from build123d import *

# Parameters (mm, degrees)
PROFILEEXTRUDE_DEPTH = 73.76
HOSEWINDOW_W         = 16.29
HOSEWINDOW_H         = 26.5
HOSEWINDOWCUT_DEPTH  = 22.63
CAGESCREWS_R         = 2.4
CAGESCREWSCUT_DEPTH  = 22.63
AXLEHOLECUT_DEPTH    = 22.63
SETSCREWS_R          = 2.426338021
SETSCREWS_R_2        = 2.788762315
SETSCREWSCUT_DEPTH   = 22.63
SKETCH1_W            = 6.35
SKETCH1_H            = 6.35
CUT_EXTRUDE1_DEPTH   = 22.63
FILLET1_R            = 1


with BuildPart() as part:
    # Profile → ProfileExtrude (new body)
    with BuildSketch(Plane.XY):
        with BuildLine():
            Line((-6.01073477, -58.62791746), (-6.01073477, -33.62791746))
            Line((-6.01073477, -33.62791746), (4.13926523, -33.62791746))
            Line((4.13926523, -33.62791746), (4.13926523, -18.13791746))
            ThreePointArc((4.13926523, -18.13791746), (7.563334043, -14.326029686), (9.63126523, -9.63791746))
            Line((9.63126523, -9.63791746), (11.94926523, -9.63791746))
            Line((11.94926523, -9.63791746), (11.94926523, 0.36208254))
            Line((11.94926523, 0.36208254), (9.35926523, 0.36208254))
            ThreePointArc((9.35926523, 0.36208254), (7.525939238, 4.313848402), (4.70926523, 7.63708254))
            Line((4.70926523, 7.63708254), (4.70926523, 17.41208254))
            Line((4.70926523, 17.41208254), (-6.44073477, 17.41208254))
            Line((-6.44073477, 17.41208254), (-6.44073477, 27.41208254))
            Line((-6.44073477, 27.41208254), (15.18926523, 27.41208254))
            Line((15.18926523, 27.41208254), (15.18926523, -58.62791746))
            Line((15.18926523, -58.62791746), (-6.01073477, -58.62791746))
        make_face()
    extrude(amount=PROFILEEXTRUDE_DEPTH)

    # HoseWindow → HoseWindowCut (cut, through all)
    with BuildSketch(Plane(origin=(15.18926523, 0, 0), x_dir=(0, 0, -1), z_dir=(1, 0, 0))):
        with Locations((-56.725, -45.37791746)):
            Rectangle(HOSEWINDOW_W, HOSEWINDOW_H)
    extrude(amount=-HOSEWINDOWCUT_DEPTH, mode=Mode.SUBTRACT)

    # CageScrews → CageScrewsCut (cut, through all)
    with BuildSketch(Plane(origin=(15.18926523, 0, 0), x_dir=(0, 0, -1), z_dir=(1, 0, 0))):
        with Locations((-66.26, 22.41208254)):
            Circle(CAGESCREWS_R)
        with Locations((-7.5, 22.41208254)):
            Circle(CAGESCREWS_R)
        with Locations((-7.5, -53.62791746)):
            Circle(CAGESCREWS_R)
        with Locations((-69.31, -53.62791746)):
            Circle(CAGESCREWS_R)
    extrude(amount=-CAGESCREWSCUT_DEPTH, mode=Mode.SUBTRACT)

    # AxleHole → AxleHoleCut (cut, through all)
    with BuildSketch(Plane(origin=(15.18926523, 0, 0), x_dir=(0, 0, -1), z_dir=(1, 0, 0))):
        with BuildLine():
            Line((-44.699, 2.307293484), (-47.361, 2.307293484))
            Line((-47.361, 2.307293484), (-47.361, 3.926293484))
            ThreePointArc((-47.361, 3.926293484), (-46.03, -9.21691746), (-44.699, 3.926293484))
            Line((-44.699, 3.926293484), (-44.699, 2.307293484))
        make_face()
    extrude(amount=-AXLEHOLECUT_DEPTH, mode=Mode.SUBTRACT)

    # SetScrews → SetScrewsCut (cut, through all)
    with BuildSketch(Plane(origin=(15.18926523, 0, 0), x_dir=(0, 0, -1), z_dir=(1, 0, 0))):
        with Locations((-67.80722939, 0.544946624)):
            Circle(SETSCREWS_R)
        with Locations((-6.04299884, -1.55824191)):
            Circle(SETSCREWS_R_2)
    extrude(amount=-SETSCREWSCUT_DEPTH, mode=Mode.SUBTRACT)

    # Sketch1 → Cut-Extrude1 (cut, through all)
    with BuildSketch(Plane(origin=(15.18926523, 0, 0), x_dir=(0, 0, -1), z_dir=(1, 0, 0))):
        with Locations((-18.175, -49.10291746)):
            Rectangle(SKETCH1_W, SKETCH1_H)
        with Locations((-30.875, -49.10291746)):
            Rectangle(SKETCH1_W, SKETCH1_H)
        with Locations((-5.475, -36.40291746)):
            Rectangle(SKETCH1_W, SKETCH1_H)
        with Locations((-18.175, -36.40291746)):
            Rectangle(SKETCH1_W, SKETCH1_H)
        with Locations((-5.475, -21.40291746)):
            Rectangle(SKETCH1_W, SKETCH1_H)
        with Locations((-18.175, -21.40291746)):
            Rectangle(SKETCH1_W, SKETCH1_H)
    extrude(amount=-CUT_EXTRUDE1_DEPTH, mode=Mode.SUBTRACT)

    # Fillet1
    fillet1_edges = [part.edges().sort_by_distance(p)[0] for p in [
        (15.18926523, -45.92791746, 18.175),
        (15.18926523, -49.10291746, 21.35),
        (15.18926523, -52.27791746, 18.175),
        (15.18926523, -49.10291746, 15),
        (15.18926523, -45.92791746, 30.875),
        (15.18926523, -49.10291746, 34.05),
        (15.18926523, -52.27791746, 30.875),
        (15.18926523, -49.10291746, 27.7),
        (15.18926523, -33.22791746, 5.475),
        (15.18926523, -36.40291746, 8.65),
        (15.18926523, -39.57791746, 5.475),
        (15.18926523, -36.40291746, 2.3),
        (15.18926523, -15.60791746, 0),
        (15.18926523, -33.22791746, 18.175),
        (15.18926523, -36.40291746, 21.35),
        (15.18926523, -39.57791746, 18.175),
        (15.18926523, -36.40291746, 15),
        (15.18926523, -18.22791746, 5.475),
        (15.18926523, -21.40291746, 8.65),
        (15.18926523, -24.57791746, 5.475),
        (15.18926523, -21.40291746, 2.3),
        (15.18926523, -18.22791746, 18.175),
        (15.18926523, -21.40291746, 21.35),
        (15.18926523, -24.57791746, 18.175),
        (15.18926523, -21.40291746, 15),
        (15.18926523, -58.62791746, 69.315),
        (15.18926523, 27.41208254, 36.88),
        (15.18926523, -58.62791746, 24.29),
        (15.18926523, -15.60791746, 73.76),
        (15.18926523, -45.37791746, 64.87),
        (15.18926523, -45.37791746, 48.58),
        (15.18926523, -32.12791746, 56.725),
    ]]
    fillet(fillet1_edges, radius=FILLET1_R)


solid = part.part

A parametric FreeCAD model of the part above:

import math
import FreeCAD as App
import Part
import Sketcher

V = App.Vector
Q = App.Units.Quantity


def edges_at(feature, points):
    """Names of the edges that pass closest to the given points."""
    edges = feature.Shape.Edges
    near = lambda p: min(range(len(edges)), key=lambda i: edges[i].distToShape(Part.Vertex(*p))[0])
    return sorted({f"Edge{near(p) + 1}" for p in points})

doc = App.newDocument("Part")
body = doc.addObject("PartDesign::Body", "Body")

# Sketch on XY plane
sketch1 = body.newObject("Sketcher::SketchObject", "Sketch")
sketch1.AttachmentSupport = (doc.getObject("XY_Plane"), [""])
sketch1.MapMode = "FlatFace"
sketch1.addGeometry([
    Part.LineSegment(V(-6, -33.6, 0), V(-6, -58.6, 0)),  # 0
    Part.LineSegment(V(-6, -58.6, 0), V(15.2, -58.6, 0)),  # 1
    Part.LineSegment(V(15.2, -58.6, 0), V(15.2, 27.4, 0)),  # 2
    Part.LineSegment(V(15.2, 27.4, 0), V(-6.4, 27.4, 0)),  # 3
    Part.LineSegment(V(-6.4, 27.4, 0), V(-6.4, 17.4, 0)),  # 4
    Part.LineSegment(V(-6.4, 17.4, 0), V(4.7, 17.4, 0)),  # 5
    Part.LineSegment(V(4.7, 17.4, 0), V(4.7, 7.6, 0)),  # 6
    Part.ArcOfCircle(Part.Circle(V(-6.2, -4.4, 0), V(0, 0, 1), 16.3), math.radians(17), math.radians(48)),  # 7
    Part.LineSegment(V(9.4, 0.4, 0), V(11.9, 0.4, 0)),  # 8
    Part.LineSegment(V(11.9, 0.4, 0), V(11.9, -9.6, 0)),  # 9
    Part.LineSegment(V(11.9, -9.6, 0), V(9.6, -9.6, 0)),  # 10
    Part.ArcOfCircle(Part.Circle(V(-6.1, -5.5, 0), V(0, 0, 1), 16.3), math.radians(-51), math.radians(-15)),  # 11
    Part.LineSegment(V(4.1, -18.1, 0), V(4.1, -33.6, 0)),  # 12
    Part.LineSegment(V(4.1, -33.6, 0), V(-6, -33.6, 0)),  # 13
], False)
sketch1.addConstraint([
    Sketcher.Constraint("Coincident", 0, 2, 1, 1),
    Sketcher.Constraint("Coincident", 1, 2, 2, 1),
    Sketcher.Constraint("Coincident", 2, 2, 3, 1),
    Sketcher.Constraint("Coincident", 3, 2, 4, 1),
    Sketcher.Constraint("Coincident", 4, 2, 5, 1),
    Sketcher.Constraint("Coincident", 5, 2, 6, 1),
    Sketcher.Constraint("Coincident", 6, 2, 7, 2),
    Sketcher.Constraint("Coincident", 7, 1, 8, 1),
    Sketcher.Constraint("Coincident", 8, 2, 9, 1),
    Sketcher.Constraint("Coincident", 9, 2, 10, 1),
    Sketcher.Constraint("Coincident", 10, 2, 11, 2),
    Sketcher.Constraint("Coincident", 11, 1, 12, 1),
    Sketcher.Constraint("Coincident", 12, 2, 13, 1),
    Sketcher.Constraint("Coincident", 13, 2, 0, 1),
    Sketcher.Constraint("Vertical", 0),
    Sketcher.Constraint("Horizontal", 1),
    Sketcher.Constraint("Vertical", 2),
    Sketcher.Constraint("Horizontal", 3),
    Sketcher.Constraint("Vertical", 4),
    Sketcher.Constraint("Horizontal", 5),
    Sketcher.Constraint("Vertical", 6),
    Sketcher.Constraint("Horizontal", 8),
    Sketcher.Constraint("Vertical", 9),
    Sketcher.Constraint("Horizontal", 10),
    Sketcher.Constraint("Vertical", 12),
    Sketcher.Constraint("Horizontal", 13),
    Sketcher.Constraint("Equal", 7, 11),
    Sketcher.Constraint("Equal", 4, 9),
    Sketcher.Constraint("DistanceY", 0, 2, 0, 1, Q("25 mm")),
    Sketcher.Constraint("DistanceY", 4, 2, 4, 1, Q("10 mm")),
    Sketcher.Constraint("DistanceX", 1, 1, 1, 2, Q("21.2 mm")),
    Sketcher.Constraint("Radius", 7, Q("16.261 mm")),
    Sketcher.Constraint("DistanceX", 3, 2, 3, 1, Q("21.63 mm")),
    Sketcher.Constraint("DistanceX", 5, 1, 5, 2, Q("11.15 mm")),
    Sketcher.Constraint("DistanceX", 8, 1, 8, 2, Q("2.59 mm")),
    Sketcher.Constraint("DistanceX", 13, 2, 13, 1, Q("10.15 mm")),
    Sketcher.Constraint("DistanceY", 2, 1, 2, 2, Q("86.04 mm")),
    Sketcher.Constraint("DistanceY", 12, 2, 12, 1, Q("15.49 mm")),
    Sketcher.Constraint("DistanceX", 4, 2, 7, 1, Q("15.8 mm")),
    Sketcher.Constraint("DistanceY", 11, 1, 10, 2, Q("8.5 mm")),
    Sketcher.Constraint("DistanceX", 10, 2, 10, 1, Q("2.318 mm")),
    Sketcher.Constraint("DistanceY", 6, 2, 6, 1, Q("9.775 mm")),
    Sketcher.Constraint("DistanceX", 7, 3, -1, 1, Q("6.175364 mm")),
    Sketcher.Constraint("DistanceY", 7, 3, -1, 1, Q("4.443686 mm")),
])
pad1 = body.newObject("PartDesign::Pad", "Pad")
pad1.Profile = sketch1
pad1.Length = 73.76

# Sketch on YZ plane
sketch2 = body.newObject("Sketcher::SketchObject", "Sketch001")
sketch2.AttachmentSupport = (doc.getObject("YZ_Plane"), [""])
sketch2.MapMode = "FlatFace"
sketch2.AttachmentOffset = App.Placement(V(0, 0, 15.189265), App.Rotation())
sketch2.addGeometry([
    Part.LineSegment(V(-32, 65, 0), V(-59, 65, 0)),
    Part.LineSegment(V(-59, 65, 0), V(-59, 49, 0)),
    Part.LineSegment(V(-59, 49, 0), V(-32, 49, 0)),
    Part.LineSegment(V(-32, 49, 0), V(-32, 65, 0)),
], False)
sketch2.addConstraint([
    Sketcher.Constraint("Coincident", 0, 2, 1, 1),
    Sketcher.Constraint("Coincident", 1, 2, 2, 1),
    Sketcher.Constraint("Coincident", 2, 2, 3, 1),
    Sketcher.Constraint("Coincident", 3, 2, 0, 1),
    Sketcher.Constraint("Horizontal", 0),
    Sketcher.Constraint("Vertical", 1),
    Sketcher.Constraint("Horizontal", 2),
    Sketcher.Constraint("Vertical", 3),
    Sketcher.Constraint("DistanceX", 0, 2, 0, 1, Q("26.5 mm")),
    Sketcher.Constraint("DistanceY", 1, 2, 1, 1, Q("16.29 mm")),
    Sketcher.Constraint("DistanceY", -1, 1, 0, 2, Q("64.87 mm")),
    Sketcher.Constraint("DistanceX", 0, 2, -1, 1, Q("58.627917 mm")),
])
pocket1 = body.newObject("PartDesign::Pocket", "Pocket")
pocket1.Profile = sketch2
pocket1.Type = "ThroughAll"

# Sketch on YZ plane
sketch3 = body.newObject("Sketcher::SketchObject", "Sketch002")
sketch3.AttachmentSupport = (doc.getObject("YZ_Plane"), [""])
sketch3.MapMode = "FlatFace"
sketch3.AttachmentOffset = App.Placement(V(0, 0, 15.189265), App.Rotation())
sketch3.addGeometry([
    Part.Circle(V(22.4, 66.3, 0), V(0, 0, 1), 2.4),
    Part.Circle(V(22.4, 7.5, 0), V(0, 0, 1), 2.4),
    Part.Circle(V(-53.6, 7.5, 0), V(0, 0, 1), 2.4),
    Part.Circle(V(-53.6, 69.3, 0), V(0, 0, 1), 2.4),
], False)
sketch3.addConstraint([
    Sketcher.Constraint("Equal", 0, 1),
    Sketcher.Constraint("Equal", 1, 2),
    Sketcher.Constraint("Equal", 2, 3),
    Sketcher.Constraint("Horizontal", 1, 3, 2, 3),
    Sketcher.Constraint("Vertical", 0, 3, 1, 3),
    Sketcher.Constraint("Vertical", 2, 3, 3, 3),
    Sketcher.Constraint("Diameter", 0, Q("4.8 mm")),
    Sketcher.Constraint("DistanceY", -1, 1, 1, 3, Q("7.5 mm")),
    Sketcher.Constraint("DistanceY", -1, 1, 0, 3, Q("66.26 mm")),
    Sketcher.Constraint("DistanceY", -1, 1, 3, 3, Q("69.31 mm")),
    Sketcher.Constraint("DistanceX", 2, 3, 1, 3, Q("76.04 mm")),
    Sketcher.Constraint("DistanceX", -1, 1, 0, 3, Q("22.412083 mm")),
])
pocket2 = body.newObject("PartDesign::Pocket", "Pocket001")
pocket2.Profile = sketch3
pocket2.Type = "ThroughAll"

# Sketch on YZ plane
sketch4 = body.newObject("Sketcher::SketchObject", "Sketch003")
sketch4.AttachmentSupport = (doc.getObject("YZ_Plane"), [""])
sketch4.MapMode = "FlatFace"
sketch4.AttachmentOffset = App.Placement(V(0, 0, 15.189265), App.Rotation())
sketch4.addGeometry([
    Part.LineSegment(V(2.3, 44.7, 0), V(2.3, 47.4, 0)),
    Part.LineSegment(V(2.3, 47.4, 0), V(3.9, 47.4, 0)),
    Part.ArcOfCircle(Part.Circle(V(-2.6, 46, 0), V(0, 0, 1), 6.6), math.radians(12), math.radians(348)),
    Part.LineSegment(V(3.9, 44.7, 0), V(2.3, 44.7, 0)),
], False)
sketch4.addConstraint([
    Sketcher.Constraint("Coincident", 0, 2, 1, 1),
    Sketcher.Constraint("Coincident", 1, 2, 2, 1),
    Sketcher.Constraint("Coincident", 2, 2, 3, 1),
    Sketcher.Constraint("Coincident", 3, 2, 0, 1),
    Sketcher.Constraint("Vertical", 0),
    Sketcher.Constraint("Horizontal", 1),
    Sketcher.Constraint("Horizontal", 3),
    Sketcher.Constraint("Vertical", 1, 2, 2, 2),
    Sketcher.Constraint("Radius", 2, Q("6.639 mm")),
    Sketcher.Constraint("DistanceX", 1, 1, 1, 2, Q("1.619 mm")),
    Sketcher.Constraint("DistanceY", 0, 1, 0, 2, Q("2.662 mm")),
    Sketcher.Constraint("DistanceY", -1, 1, 2, 3, Q("46.03 mm")),
    Sketcher.Constraint("DistanceX", 2, 3, -1, 1, Q("2.577917 mm")),
])
pocket3 = body.newObject("PartDesign::Pocket", "Pocket002")
pocket3.Profile = sketch4
pocket3.Type = "ThroughAll"

# Sketch on YZ plane
sketch5 = body.newObject("Sketcher::SketchObject", "Sketch004")
sketch5.AttachmentSupport = (doc.getObject("YZ_Plane"), [""])
sketch5.MapMode = "FlatFace"
sketch5.AttachmentOffset = App.Placement(V(0, 0, 15.189265), App.Rotation())
sketch5.addGeometry([
    Part.Circle(V(0.5, 67.8, 0), V(0, 0, 1), 2.4),
    Part.Circle(V(-1.6, 6, 0), V(0, 0, 1), 2.8),
], False)
sketch5.addConstraint([
    Sketcher.Constraint("Diameter", 0, Q("4.852676 mm")),
    Sketcher.Constraint("Diameter", 1, Q("5.577525 mm")),
    Sketcher.Constraint("DistanceY", -1, 1, 1, 3, Q("6.042999 mm")),
    Sketcher.Constraint("DistanceY", -1, 1, 0, 3, Q("67.807229 mm")),
    Sketcher.Constraint("DistanceX", 1, 3, -1, 1, Q("1.558242 mm")),
    Sketcher.Constraint("DistanceX", 1, 3, 0, 3, Q("2.103189 mm")),
])
pocket4 = body.newObject("PartDesign::Pocket", "Pocket003")
pocket4.Profile = sketch5
pocket4.Type = "ThroughAll"

# Sketch on YZ plane
sketch6 = body.newObject("Sketcher::SketchObject", "Sketch005")
sketch6.AttachmentSupport = (doc.getObject("YZ_Plane"), [""])
sketch6.MapMode = "FlatFace"
sketch6.AttachmentOffset = App.Placement(V(0, 0, 15.189265), App.Rotation())
sketch6.addGeometry([
    Part.LineSegment(V(-46, 21, 0), V(-52, 21, 0)),  # 0
    Part.LineSegment(V(-52, 21, 0), V(-52, 15, 0)),  # 1
    Part.LineSegment(V(-52, 15, 0), V(-46, 15, 0)),  # 2
    Part.LineSegment(V(-46, 15, 0), V(-46, 21, 0)),  # 3
    Part.LineSegment(V(-46, 34, 0), V(-52, 34, 0)),  # 4
    Part.LineSegment(V(-52, 34, 0), V(-52, 28, 0)),  # 5
    Part.LineSegment(V(-52, 28, 0), V(-46, 28, 0)),  # 6
    Part.LineSegment(V(-46, 28, 0), V(-46, 34, 0)),  # 7
    Part.LineSegment(V(-33, 9, 0), V(-40, 9, 0)),  # 8
    Part.LineSegment(V(-40, 9, 0), V(-40, 2, 0)),  # 9
    Part.LineSegment(V(-40, 2, 0), V(-33, 2, 0)),  # 10
    Part.LineSegment(V(-33, 2, 0), V(-33, 9, 0)),  # 11
    Part.LineSegment(V(-33, 21, 0), V(-40, 21, 0)),  # 12
    Part.LineSegment(V(-40, 21, 0), V(-40, 15, 0)),  # 13
    Part.LineSegment(V(-40, 15, 0), V(-33, 15, 0)),  # 14
    Part.LineSegment(V(-33, 15, 0), V(-33, 21, 0)),  # 15
    Part.LineSegment(V(-18, 9, 0), V(-25, 9, 0)),  # 16
    Part.LineSegment(V(-25, 9, 0), V(-25, 2, 0)),  # 17
    Part.LineSegment(V(-25, 2, 0), V(-18, 2, 0)),  # 18
    Part.LineSegment(V(-18, 2, 0), V(-18, 9, 0)),  # 19
    Part.LineSegment(V(-18, 21, 0), V(-25, 21, 0)),  # 20
    Part.LineSegment(V(-25, 21, 0), V(-25, 15, 0)),  # 21
    Part.LineSegment(V(-25, 15, 0), V(-18, 15, 0)),  # 22
    Part.LineSegment(V(-18, 15, 0), V(-18, 21, 0)),  # 23
], False)
sketch6.addConstraint([
    Sketcher.Constraint("Coincident", 0, 2, 1, 1),
    Sketcher.Constraint("Coincident", 1, 2, 2, 1),
    Sketcher.Constraint("Coincident", 2, 2, 3, 1),
    Sketcher.Constraint("Coincident", 3, 2, 0, 1),
    Sketcher.Constraint("Coincident", 4, 2, 5, 1),
    Sketcher.Constraint("Coincident", 5, 2, 6, 1),
    Sketcher.Constraint("Coincident", 6, 2, 7, 1),
    Sketcher.Constraint("Coincident", 7, 2, 4, 1),
    Sketcher.Constraint("Coincident", 8, 2, 9, 1),
    Sketcher.Constraint("Coincident", 9, 2, 10, 1),
    Sketcher.Constraint("Coincident", 10, 2, 11, 1),
    Sketcher.Constraint("Coincident", 11, 2, 8, 1),
    Sketcher.Constraint("Coincident", 12, 2, 13, 1),
    Sketcher.Constraint("Coincident", 13, 2, 14, 1),
    Sketcher.Constraint("Coincident", 14, 2, 15, 1),
    Sketcher.Constraint("Coincident", 15, 2, 12, 1),
    Sketcher.Constraint("Coincident", 16, 2, 17, 1),
    Sketcher.Constraint("Coincident", 17, 2, 18, 1),
    Sketcher.Constraint("Coincident", 18, 2, 19, 1),
    Sketcher.Constraint("Coincident", 19, 2, 16, 1),
    Sketcher.Constraint("Coincident", 20, 2, 21, 1),
    Sketcher.Constraint("Coincident", 21, 2, 22, 1),
    Sketcher.Constraint("Coincident", 22, 2, 23, 1),
    Sketcher.Constraint("Coincident", 23, 2, 20, 1),
    Sketcher.Constraint("Horizontal", 0),
    Sketcher.Constraint("Vertical", 1),
    Sketcher.Constraint("Horizontal", 2),
    Sketcher.Constraint("Vertical", 3),
    Sketcher.Constraint("Horizontal", 4),
    Sketcher.Constraint("Vertical", 5),
    Sketcher.Constraint("Horizontal", 6),
    Sketcher.Constraint("Vertical", 7),
    Sketcher.Constraint("Horizontal", 8),
    Sketcher.Constraint("Vertical", 9),
    Sketcher.Constraint("Horizontal", 10),
    Sketcher.Constraint("Vertical", 11),
    Sketcher.Constraint("Horizontal", 12),
    Sketcher.Constraint("Vertical", 13),
    Sketcher.Constraint("Horizontal", 14),
    Sketcher.Constraint("Vertical", 15),
    Sketcher.Constraint("Horizontal", 16),
    Sketcher.Constraint("Vertical", 17),
    Sketcher.Constraint("Horizontal", 18),
    Sketcher.Constraint("Vertical", 19),
    Sketcher.Constraint("Horizontal", 20),
    Sketcher.Constraint("Vertical", 21),
    Sketcher.Constraint("Horizontal", 22),
    Sketcher.Constraint("Vertical", 23),
    Sketcher.Constraint("Horizontal", 3, 2, 12, 2),
    Sketcher.Constraint("Horizontal", 2, 2, 13, 2),
    Sketcher.Constraint("Horizontal", 11, 2, 16, 2),
    Sketcher.Constraint("Horizontal", 10, 2, 17, 2),
    Sketcher.Constraint("Horizontal", 15, 2, 20, 2),
    Sketcher.Constraint("Horizontal", 14, 2, 21, 2),
    Sketcher.Constraint("Vertical", 1, 2, 4, 2),
    Sketcher.Constraint("Vertical", 3, 2, 6, 2),
    Sketcher.Constraint("Vertical", 9, 2, 12, 2),
    Sketcher.Constraint("Vertical", 11, 2, 14, 2),
    Sketcher.Constraint("Vertical", 17, 2, 20, 2),
    Sketcher.Constraint("Vertical", 19, 2, 22, 2),
    Sketcher.Constraint("Equal", 6, 8),
    Sketcher.Constraint("Equal", 14, 16),
    Sketcher.Constraint("Equal", 22, 1),
    Sketcher.Constraint("Equal", 3, 5),
    Sketcher.Constraint("Equal", 7, 9),
    Sketcher.Constraint("DistanceY", -1, 1, 1, 2, Q("15 mm")),
    Sketcher.Constraint("DistanceX", 8, 2, 16, 2, Q("15 mm")),
    Sketcher.Constraint("DistanceX", 0, 2, 0, 1, Q("6.35 mm")),
    Sketcher.Constraint("DistanceY", -1, 1, 5, 2, Q("27.7 mm")),
    Sketcher.Constraint("DistanceY", -1, 1, 9, 2, Q("2.3 mm")),
    Sketcher.Constraint("DistanceX", 1, 2, 8, 2, Q("12.7 mm")),
    Sketcher.Constraint("DistanceX", 0, 2, -1, 1, Q("52.277917 mm")),
])
pocket5 = body.newObject("PartDesign::Pocket", "Pocket004")
pocket5.Profile = sketch6
pocket5.Type = "ThroughAll"
doc.recompute()

fillet = body.newObject("PartDesign::Fillet", "Fillet")
fillet.Base = (pocket5, edges_at(pocket5, [
    (15.189, -45.928, 18.175),
    (15.189, -49.103, 21.35),
    (15.189, -52.278, 18.175),
    (15.189, -49.103, 15),
    (15.189, -45.928, 30.875),
    (15.189, -49.103, 34.05),
    (15.189, -52.278, 30.875),
    (15.189, -49.103, 27.7),
    (15.189, -33.228, 5.475),
    (15.189, -36.403, 8.65),
    (15.189, -39.578, 5.475),
    (15.189, -36.403, 2.3),
    (15.189, -15.608, 0),
    (15.189, -33.228, 18.175),
    (15.189, -36.403, 21.35),
    (15.189, -39.578, 18.175),
    (15.189, -36.403, 15),
    (15.189, -18.228, 5.475),
    (15.189, -21.403, 8.65),
    (15.189, -24.578, 5.475),
    (15.189, -21.403, 2.3),
    (15.189, -18.228, 18.175),
    (15.189, -21.403, 21.35),
    (15.189, -24.578, 18.175),
    (15.189, -21.403, 15),
    (15.189, -58.628, 69.315),
    (15.189, 27.412, 36.88),
    (15.189, -58.628, 24.29),
    (15.189, -15.608, 73.76),
    (15.189, -45.378, 64.87),
    (15.189, -45.378, 48.58),
    (15.189, -32.128, 56.725),
]))
fillet.Radius = 1

doc.recompute()
